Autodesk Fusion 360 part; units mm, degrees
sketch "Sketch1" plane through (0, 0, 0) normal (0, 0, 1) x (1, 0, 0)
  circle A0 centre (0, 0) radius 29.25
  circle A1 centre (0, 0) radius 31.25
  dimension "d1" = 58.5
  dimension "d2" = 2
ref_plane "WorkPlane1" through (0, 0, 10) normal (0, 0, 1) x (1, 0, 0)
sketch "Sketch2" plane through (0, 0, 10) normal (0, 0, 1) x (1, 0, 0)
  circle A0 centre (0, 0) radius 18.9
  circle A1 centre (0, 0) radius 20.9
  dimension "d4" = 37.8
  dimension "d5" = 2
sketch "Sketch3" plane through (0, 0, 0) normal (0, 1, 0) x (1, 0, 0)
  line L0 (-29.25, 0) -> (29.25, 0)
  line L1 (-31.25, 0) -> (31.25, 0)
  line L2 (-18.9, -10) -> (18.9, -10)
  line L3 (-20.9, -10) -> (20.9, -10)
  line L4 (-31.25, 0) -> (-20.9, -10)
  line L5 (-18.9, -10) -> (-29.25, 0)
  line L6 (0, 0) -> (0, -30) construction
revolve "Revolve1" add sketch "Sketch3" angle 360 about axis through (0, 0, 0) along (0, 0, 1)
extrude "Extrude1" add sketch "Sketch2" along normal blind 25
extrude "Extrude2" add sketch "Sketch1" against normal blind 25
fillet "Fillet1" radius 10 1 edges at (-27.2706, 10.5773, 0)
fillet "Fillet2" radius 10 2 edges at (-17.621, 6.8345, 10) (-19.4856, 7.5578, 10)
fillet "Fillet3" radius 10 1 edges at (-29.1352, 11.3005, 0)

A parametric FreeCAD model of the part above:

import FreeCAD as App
import Part
import Sketcher
Q = App.Units.Quantity


def edges_at(feature, points):
    """Names of the edges that pass closest to the given points."""
    edges = feature.Shape.Edges
    near = lambda p: min(range(len(edges)), key=lambda i: edges[i].distToShape(Part.Vertex(*p))[0])
    return sorted({f"Edge{near(p) + 1}" for p in points})


def add_polygon(sketch, points):
    """Adds a closed chain of lines whose ends are joined by coincident constraints."""
    first, n = sketch.GeometryCount, len(points)
    for a, b in zip(points, points[1:] + points[:1]):
        sketch.addGeometry(Part.LineSegment(App.Vector(*a, 0), App.Vector(*b, 0)), False)
    for i in range(n):
        sketch.addConstraint(Sketcher.Constraint("Coincident", first + i, 2, first + (i + 1) % n, 1))

doc = App.newDocument("Part")
params = doc.addObject("Spreadsheet::Sheet", "Params")
for row, (alias, value) in enumerate([
    ("sketch1_width", "2 mm"),
    ("revolution_angle", "360 deg"),
    ("sketch2_diameter", "37.8 mm"),
    ("sketch2_diameter2", "41.8 mm"),
    ("pad1_length", "25 mm"),
    ("sketch3_diameter", "58.5 mm"),
    ("sketch3_diameter2", "62.5 mm"),
    ("pad2_length", "25 mm"),
    ("fillet_radius", "10 mm"),
    ("fillet2_radius", "10 mm"),
    ("fillet3_radius", "10 mm"),
], start=1):
    params.set(f"A{row}", alias)
    params.set(f"B{row}", "=" + value)
    params.setAlias(f"B{row}", alias)

body = doc.addObject("PartDesign::Body", "Body")

sketch1 = body.newObject("Sketcher::SketchObject", "Sketch")
sketch1.AttachmentSupport = (doc.getObject("XZ_Plane"), [""])
sketch1.MapMode = "FlatFace"
add_polygon(sketch1, [(-29.25, 0), (-31.25, 0), (-20.9, 10), (-18.9, 10)])
sketch1.addConstraint(Sketcher.Constraint("Horizontal", 0))
sketch1.addConstraint(Sketcher.Constraint("Horizontal", 2))
sketch1.addConstraint(Sketcher.Constraint("PointOnObject", 0, 2, -1))
sketch1.addConstraint(Sketcher.Constraint("Parallel", 1, 3))
sketch1.addConstraint(Sketcher.Constraint("DistanceX", 0, 2, 0, 1, Q("2 mm")))
sketch1.addConstraint(Sketcher.Constraint("DistanceY", -1, 1, 1, 2, Q("10 mm")))
sketch1.addConstraint(Sketcher.Constraint("DistanceX", 1, 2, -1, 1, Q("20.9 mm")))
sketch1.addConstraint(Sketcher.Constraint("DistanceX", 0, 2, -1, 1, Q("31.25 mm")))
sketch1.setExpression("Constraints[8]", "Params.sketch1_width")
revolution = body.newObject("PartDesign::Revolution", "Revolution")
revolution.Profile = sketch1
revolution.ReferenceAxis = (sketch1, ["V_Axis"])
revolution.setExpression("Angle", "Params.revolution_angle")

sketch2 = body.newObject("Sketcher::SketchObject", "Sketch001")
sketch2.AttachmentSupport = (doc.getObject("XY_Plane"), [""])
sketch2.MapMode = "FlatFace"
sketch2.AttachmentOffset = App.Placement(App.Vector(0, 0, 10), App.Rotation())
sketch2.addGeometry(Part.Circle(App.Vector(0, 0, 0), App.Vector(0, 0, 1), 20.9), False)
sketch2.addGeometry(Part.Circle(App.Vector(0, 0, 0), App.Vector(0, 0, 1), 18.9), False)
sketch2.addConstraint(Sketcher.Constraint("Coincident", 0, 3, -1, 1))
sketch2.addConstraint(Sketcher.Constraint("Coincident", 1, 3, -1, 1))
sketch2.addConstraint(Sketcher.Constraint("Diameter", 1, Q("37.8 mm")))
sketch2.addConstraint(Sketcher.Constraint("Diameter", 0, Q("41.8 mm")))
sketch2.setExpression("Constraints[2]", "Params.sketch2_diameter")
sketch2.setExpression("Constraints[3]", "Params.sketch2_diameter2")
pad1 = body.newObject("PartDesign::Pad", "Pad")
pad1.Profile = sketch2
pad1.setExpression("Length", "Params.pad1_length")

sketch3 = body.newObject("Sketcher::SketchObject", "Sketch002")
sketch3.AttachmentSupport = (doc.getObject("XY_Plane"), [""])
sketch3.MapMode = "FlatFace"
sketch3.addGeometry(Part.Circle(App.Vector(0, 0, 0), App.Vector(0, 0, 1), 31.25), False)
sketch3.addGeometry(Part.Circle(App.Vector(0, 0, 0), App.Vector(0, 0, 1), 29.25), False)
sketch3.addConstraint(Sketcher.Constraint("Coincident", 0, 3, -1, 1))
sketch3.addConstraint(Sketcher.Constraint("Coincident", 1, 3, -1, 1))
sketch3.addConstraint(Sketcher.Constraint("Diameter", 1, Q("58.5 mm")))
sketch3.addConstraint(Sketcher.Constraint("Diameter", 0, Q("62.5 mm")))
sketch3.setExpression("Constraints[2]", "Params.sketch3_diameter")
sketch3.setExpression("Constraints[3]", "Params.sketch3_diameter2")
pad2 = body.newObject("PartDesign::Pad", "Pad001")
pad2.Profile = sketch3
pad2.setExpression("Length", "Params.pad2_length")
pad2.Reversed = True
doc.recompute()

fillet = body.newObject("PartDesign::Fillet", "Fillet")
fillet.Base = (pad2, edges_at(pad2, [(-27.271, 10.577, 0)]))
fillet.setExpression("Radius", "Params.fillet_radius")
doc.recompute()

fillet2 = body.newObject("PartDesign::Fillet", "Fillet001")
fillet2.Base = (fillet, edges_at(fillet, [(-17.621, 6.835, 10), (-19.486, 7.558, 10)]))
fillet2.setExpression("Radius", "Params.fillet2_radius")
doc.recompute()

fillet3 = body.newObject("PartDesign::Fillet", "Fillet002")
fillet3.Base = (fillet2, edges_at(fillet2, [(-29.135, 11.3, 0)]))
fillet3.setExpression("Radius", "Params.fillet3_radius")

doc.recompute()
